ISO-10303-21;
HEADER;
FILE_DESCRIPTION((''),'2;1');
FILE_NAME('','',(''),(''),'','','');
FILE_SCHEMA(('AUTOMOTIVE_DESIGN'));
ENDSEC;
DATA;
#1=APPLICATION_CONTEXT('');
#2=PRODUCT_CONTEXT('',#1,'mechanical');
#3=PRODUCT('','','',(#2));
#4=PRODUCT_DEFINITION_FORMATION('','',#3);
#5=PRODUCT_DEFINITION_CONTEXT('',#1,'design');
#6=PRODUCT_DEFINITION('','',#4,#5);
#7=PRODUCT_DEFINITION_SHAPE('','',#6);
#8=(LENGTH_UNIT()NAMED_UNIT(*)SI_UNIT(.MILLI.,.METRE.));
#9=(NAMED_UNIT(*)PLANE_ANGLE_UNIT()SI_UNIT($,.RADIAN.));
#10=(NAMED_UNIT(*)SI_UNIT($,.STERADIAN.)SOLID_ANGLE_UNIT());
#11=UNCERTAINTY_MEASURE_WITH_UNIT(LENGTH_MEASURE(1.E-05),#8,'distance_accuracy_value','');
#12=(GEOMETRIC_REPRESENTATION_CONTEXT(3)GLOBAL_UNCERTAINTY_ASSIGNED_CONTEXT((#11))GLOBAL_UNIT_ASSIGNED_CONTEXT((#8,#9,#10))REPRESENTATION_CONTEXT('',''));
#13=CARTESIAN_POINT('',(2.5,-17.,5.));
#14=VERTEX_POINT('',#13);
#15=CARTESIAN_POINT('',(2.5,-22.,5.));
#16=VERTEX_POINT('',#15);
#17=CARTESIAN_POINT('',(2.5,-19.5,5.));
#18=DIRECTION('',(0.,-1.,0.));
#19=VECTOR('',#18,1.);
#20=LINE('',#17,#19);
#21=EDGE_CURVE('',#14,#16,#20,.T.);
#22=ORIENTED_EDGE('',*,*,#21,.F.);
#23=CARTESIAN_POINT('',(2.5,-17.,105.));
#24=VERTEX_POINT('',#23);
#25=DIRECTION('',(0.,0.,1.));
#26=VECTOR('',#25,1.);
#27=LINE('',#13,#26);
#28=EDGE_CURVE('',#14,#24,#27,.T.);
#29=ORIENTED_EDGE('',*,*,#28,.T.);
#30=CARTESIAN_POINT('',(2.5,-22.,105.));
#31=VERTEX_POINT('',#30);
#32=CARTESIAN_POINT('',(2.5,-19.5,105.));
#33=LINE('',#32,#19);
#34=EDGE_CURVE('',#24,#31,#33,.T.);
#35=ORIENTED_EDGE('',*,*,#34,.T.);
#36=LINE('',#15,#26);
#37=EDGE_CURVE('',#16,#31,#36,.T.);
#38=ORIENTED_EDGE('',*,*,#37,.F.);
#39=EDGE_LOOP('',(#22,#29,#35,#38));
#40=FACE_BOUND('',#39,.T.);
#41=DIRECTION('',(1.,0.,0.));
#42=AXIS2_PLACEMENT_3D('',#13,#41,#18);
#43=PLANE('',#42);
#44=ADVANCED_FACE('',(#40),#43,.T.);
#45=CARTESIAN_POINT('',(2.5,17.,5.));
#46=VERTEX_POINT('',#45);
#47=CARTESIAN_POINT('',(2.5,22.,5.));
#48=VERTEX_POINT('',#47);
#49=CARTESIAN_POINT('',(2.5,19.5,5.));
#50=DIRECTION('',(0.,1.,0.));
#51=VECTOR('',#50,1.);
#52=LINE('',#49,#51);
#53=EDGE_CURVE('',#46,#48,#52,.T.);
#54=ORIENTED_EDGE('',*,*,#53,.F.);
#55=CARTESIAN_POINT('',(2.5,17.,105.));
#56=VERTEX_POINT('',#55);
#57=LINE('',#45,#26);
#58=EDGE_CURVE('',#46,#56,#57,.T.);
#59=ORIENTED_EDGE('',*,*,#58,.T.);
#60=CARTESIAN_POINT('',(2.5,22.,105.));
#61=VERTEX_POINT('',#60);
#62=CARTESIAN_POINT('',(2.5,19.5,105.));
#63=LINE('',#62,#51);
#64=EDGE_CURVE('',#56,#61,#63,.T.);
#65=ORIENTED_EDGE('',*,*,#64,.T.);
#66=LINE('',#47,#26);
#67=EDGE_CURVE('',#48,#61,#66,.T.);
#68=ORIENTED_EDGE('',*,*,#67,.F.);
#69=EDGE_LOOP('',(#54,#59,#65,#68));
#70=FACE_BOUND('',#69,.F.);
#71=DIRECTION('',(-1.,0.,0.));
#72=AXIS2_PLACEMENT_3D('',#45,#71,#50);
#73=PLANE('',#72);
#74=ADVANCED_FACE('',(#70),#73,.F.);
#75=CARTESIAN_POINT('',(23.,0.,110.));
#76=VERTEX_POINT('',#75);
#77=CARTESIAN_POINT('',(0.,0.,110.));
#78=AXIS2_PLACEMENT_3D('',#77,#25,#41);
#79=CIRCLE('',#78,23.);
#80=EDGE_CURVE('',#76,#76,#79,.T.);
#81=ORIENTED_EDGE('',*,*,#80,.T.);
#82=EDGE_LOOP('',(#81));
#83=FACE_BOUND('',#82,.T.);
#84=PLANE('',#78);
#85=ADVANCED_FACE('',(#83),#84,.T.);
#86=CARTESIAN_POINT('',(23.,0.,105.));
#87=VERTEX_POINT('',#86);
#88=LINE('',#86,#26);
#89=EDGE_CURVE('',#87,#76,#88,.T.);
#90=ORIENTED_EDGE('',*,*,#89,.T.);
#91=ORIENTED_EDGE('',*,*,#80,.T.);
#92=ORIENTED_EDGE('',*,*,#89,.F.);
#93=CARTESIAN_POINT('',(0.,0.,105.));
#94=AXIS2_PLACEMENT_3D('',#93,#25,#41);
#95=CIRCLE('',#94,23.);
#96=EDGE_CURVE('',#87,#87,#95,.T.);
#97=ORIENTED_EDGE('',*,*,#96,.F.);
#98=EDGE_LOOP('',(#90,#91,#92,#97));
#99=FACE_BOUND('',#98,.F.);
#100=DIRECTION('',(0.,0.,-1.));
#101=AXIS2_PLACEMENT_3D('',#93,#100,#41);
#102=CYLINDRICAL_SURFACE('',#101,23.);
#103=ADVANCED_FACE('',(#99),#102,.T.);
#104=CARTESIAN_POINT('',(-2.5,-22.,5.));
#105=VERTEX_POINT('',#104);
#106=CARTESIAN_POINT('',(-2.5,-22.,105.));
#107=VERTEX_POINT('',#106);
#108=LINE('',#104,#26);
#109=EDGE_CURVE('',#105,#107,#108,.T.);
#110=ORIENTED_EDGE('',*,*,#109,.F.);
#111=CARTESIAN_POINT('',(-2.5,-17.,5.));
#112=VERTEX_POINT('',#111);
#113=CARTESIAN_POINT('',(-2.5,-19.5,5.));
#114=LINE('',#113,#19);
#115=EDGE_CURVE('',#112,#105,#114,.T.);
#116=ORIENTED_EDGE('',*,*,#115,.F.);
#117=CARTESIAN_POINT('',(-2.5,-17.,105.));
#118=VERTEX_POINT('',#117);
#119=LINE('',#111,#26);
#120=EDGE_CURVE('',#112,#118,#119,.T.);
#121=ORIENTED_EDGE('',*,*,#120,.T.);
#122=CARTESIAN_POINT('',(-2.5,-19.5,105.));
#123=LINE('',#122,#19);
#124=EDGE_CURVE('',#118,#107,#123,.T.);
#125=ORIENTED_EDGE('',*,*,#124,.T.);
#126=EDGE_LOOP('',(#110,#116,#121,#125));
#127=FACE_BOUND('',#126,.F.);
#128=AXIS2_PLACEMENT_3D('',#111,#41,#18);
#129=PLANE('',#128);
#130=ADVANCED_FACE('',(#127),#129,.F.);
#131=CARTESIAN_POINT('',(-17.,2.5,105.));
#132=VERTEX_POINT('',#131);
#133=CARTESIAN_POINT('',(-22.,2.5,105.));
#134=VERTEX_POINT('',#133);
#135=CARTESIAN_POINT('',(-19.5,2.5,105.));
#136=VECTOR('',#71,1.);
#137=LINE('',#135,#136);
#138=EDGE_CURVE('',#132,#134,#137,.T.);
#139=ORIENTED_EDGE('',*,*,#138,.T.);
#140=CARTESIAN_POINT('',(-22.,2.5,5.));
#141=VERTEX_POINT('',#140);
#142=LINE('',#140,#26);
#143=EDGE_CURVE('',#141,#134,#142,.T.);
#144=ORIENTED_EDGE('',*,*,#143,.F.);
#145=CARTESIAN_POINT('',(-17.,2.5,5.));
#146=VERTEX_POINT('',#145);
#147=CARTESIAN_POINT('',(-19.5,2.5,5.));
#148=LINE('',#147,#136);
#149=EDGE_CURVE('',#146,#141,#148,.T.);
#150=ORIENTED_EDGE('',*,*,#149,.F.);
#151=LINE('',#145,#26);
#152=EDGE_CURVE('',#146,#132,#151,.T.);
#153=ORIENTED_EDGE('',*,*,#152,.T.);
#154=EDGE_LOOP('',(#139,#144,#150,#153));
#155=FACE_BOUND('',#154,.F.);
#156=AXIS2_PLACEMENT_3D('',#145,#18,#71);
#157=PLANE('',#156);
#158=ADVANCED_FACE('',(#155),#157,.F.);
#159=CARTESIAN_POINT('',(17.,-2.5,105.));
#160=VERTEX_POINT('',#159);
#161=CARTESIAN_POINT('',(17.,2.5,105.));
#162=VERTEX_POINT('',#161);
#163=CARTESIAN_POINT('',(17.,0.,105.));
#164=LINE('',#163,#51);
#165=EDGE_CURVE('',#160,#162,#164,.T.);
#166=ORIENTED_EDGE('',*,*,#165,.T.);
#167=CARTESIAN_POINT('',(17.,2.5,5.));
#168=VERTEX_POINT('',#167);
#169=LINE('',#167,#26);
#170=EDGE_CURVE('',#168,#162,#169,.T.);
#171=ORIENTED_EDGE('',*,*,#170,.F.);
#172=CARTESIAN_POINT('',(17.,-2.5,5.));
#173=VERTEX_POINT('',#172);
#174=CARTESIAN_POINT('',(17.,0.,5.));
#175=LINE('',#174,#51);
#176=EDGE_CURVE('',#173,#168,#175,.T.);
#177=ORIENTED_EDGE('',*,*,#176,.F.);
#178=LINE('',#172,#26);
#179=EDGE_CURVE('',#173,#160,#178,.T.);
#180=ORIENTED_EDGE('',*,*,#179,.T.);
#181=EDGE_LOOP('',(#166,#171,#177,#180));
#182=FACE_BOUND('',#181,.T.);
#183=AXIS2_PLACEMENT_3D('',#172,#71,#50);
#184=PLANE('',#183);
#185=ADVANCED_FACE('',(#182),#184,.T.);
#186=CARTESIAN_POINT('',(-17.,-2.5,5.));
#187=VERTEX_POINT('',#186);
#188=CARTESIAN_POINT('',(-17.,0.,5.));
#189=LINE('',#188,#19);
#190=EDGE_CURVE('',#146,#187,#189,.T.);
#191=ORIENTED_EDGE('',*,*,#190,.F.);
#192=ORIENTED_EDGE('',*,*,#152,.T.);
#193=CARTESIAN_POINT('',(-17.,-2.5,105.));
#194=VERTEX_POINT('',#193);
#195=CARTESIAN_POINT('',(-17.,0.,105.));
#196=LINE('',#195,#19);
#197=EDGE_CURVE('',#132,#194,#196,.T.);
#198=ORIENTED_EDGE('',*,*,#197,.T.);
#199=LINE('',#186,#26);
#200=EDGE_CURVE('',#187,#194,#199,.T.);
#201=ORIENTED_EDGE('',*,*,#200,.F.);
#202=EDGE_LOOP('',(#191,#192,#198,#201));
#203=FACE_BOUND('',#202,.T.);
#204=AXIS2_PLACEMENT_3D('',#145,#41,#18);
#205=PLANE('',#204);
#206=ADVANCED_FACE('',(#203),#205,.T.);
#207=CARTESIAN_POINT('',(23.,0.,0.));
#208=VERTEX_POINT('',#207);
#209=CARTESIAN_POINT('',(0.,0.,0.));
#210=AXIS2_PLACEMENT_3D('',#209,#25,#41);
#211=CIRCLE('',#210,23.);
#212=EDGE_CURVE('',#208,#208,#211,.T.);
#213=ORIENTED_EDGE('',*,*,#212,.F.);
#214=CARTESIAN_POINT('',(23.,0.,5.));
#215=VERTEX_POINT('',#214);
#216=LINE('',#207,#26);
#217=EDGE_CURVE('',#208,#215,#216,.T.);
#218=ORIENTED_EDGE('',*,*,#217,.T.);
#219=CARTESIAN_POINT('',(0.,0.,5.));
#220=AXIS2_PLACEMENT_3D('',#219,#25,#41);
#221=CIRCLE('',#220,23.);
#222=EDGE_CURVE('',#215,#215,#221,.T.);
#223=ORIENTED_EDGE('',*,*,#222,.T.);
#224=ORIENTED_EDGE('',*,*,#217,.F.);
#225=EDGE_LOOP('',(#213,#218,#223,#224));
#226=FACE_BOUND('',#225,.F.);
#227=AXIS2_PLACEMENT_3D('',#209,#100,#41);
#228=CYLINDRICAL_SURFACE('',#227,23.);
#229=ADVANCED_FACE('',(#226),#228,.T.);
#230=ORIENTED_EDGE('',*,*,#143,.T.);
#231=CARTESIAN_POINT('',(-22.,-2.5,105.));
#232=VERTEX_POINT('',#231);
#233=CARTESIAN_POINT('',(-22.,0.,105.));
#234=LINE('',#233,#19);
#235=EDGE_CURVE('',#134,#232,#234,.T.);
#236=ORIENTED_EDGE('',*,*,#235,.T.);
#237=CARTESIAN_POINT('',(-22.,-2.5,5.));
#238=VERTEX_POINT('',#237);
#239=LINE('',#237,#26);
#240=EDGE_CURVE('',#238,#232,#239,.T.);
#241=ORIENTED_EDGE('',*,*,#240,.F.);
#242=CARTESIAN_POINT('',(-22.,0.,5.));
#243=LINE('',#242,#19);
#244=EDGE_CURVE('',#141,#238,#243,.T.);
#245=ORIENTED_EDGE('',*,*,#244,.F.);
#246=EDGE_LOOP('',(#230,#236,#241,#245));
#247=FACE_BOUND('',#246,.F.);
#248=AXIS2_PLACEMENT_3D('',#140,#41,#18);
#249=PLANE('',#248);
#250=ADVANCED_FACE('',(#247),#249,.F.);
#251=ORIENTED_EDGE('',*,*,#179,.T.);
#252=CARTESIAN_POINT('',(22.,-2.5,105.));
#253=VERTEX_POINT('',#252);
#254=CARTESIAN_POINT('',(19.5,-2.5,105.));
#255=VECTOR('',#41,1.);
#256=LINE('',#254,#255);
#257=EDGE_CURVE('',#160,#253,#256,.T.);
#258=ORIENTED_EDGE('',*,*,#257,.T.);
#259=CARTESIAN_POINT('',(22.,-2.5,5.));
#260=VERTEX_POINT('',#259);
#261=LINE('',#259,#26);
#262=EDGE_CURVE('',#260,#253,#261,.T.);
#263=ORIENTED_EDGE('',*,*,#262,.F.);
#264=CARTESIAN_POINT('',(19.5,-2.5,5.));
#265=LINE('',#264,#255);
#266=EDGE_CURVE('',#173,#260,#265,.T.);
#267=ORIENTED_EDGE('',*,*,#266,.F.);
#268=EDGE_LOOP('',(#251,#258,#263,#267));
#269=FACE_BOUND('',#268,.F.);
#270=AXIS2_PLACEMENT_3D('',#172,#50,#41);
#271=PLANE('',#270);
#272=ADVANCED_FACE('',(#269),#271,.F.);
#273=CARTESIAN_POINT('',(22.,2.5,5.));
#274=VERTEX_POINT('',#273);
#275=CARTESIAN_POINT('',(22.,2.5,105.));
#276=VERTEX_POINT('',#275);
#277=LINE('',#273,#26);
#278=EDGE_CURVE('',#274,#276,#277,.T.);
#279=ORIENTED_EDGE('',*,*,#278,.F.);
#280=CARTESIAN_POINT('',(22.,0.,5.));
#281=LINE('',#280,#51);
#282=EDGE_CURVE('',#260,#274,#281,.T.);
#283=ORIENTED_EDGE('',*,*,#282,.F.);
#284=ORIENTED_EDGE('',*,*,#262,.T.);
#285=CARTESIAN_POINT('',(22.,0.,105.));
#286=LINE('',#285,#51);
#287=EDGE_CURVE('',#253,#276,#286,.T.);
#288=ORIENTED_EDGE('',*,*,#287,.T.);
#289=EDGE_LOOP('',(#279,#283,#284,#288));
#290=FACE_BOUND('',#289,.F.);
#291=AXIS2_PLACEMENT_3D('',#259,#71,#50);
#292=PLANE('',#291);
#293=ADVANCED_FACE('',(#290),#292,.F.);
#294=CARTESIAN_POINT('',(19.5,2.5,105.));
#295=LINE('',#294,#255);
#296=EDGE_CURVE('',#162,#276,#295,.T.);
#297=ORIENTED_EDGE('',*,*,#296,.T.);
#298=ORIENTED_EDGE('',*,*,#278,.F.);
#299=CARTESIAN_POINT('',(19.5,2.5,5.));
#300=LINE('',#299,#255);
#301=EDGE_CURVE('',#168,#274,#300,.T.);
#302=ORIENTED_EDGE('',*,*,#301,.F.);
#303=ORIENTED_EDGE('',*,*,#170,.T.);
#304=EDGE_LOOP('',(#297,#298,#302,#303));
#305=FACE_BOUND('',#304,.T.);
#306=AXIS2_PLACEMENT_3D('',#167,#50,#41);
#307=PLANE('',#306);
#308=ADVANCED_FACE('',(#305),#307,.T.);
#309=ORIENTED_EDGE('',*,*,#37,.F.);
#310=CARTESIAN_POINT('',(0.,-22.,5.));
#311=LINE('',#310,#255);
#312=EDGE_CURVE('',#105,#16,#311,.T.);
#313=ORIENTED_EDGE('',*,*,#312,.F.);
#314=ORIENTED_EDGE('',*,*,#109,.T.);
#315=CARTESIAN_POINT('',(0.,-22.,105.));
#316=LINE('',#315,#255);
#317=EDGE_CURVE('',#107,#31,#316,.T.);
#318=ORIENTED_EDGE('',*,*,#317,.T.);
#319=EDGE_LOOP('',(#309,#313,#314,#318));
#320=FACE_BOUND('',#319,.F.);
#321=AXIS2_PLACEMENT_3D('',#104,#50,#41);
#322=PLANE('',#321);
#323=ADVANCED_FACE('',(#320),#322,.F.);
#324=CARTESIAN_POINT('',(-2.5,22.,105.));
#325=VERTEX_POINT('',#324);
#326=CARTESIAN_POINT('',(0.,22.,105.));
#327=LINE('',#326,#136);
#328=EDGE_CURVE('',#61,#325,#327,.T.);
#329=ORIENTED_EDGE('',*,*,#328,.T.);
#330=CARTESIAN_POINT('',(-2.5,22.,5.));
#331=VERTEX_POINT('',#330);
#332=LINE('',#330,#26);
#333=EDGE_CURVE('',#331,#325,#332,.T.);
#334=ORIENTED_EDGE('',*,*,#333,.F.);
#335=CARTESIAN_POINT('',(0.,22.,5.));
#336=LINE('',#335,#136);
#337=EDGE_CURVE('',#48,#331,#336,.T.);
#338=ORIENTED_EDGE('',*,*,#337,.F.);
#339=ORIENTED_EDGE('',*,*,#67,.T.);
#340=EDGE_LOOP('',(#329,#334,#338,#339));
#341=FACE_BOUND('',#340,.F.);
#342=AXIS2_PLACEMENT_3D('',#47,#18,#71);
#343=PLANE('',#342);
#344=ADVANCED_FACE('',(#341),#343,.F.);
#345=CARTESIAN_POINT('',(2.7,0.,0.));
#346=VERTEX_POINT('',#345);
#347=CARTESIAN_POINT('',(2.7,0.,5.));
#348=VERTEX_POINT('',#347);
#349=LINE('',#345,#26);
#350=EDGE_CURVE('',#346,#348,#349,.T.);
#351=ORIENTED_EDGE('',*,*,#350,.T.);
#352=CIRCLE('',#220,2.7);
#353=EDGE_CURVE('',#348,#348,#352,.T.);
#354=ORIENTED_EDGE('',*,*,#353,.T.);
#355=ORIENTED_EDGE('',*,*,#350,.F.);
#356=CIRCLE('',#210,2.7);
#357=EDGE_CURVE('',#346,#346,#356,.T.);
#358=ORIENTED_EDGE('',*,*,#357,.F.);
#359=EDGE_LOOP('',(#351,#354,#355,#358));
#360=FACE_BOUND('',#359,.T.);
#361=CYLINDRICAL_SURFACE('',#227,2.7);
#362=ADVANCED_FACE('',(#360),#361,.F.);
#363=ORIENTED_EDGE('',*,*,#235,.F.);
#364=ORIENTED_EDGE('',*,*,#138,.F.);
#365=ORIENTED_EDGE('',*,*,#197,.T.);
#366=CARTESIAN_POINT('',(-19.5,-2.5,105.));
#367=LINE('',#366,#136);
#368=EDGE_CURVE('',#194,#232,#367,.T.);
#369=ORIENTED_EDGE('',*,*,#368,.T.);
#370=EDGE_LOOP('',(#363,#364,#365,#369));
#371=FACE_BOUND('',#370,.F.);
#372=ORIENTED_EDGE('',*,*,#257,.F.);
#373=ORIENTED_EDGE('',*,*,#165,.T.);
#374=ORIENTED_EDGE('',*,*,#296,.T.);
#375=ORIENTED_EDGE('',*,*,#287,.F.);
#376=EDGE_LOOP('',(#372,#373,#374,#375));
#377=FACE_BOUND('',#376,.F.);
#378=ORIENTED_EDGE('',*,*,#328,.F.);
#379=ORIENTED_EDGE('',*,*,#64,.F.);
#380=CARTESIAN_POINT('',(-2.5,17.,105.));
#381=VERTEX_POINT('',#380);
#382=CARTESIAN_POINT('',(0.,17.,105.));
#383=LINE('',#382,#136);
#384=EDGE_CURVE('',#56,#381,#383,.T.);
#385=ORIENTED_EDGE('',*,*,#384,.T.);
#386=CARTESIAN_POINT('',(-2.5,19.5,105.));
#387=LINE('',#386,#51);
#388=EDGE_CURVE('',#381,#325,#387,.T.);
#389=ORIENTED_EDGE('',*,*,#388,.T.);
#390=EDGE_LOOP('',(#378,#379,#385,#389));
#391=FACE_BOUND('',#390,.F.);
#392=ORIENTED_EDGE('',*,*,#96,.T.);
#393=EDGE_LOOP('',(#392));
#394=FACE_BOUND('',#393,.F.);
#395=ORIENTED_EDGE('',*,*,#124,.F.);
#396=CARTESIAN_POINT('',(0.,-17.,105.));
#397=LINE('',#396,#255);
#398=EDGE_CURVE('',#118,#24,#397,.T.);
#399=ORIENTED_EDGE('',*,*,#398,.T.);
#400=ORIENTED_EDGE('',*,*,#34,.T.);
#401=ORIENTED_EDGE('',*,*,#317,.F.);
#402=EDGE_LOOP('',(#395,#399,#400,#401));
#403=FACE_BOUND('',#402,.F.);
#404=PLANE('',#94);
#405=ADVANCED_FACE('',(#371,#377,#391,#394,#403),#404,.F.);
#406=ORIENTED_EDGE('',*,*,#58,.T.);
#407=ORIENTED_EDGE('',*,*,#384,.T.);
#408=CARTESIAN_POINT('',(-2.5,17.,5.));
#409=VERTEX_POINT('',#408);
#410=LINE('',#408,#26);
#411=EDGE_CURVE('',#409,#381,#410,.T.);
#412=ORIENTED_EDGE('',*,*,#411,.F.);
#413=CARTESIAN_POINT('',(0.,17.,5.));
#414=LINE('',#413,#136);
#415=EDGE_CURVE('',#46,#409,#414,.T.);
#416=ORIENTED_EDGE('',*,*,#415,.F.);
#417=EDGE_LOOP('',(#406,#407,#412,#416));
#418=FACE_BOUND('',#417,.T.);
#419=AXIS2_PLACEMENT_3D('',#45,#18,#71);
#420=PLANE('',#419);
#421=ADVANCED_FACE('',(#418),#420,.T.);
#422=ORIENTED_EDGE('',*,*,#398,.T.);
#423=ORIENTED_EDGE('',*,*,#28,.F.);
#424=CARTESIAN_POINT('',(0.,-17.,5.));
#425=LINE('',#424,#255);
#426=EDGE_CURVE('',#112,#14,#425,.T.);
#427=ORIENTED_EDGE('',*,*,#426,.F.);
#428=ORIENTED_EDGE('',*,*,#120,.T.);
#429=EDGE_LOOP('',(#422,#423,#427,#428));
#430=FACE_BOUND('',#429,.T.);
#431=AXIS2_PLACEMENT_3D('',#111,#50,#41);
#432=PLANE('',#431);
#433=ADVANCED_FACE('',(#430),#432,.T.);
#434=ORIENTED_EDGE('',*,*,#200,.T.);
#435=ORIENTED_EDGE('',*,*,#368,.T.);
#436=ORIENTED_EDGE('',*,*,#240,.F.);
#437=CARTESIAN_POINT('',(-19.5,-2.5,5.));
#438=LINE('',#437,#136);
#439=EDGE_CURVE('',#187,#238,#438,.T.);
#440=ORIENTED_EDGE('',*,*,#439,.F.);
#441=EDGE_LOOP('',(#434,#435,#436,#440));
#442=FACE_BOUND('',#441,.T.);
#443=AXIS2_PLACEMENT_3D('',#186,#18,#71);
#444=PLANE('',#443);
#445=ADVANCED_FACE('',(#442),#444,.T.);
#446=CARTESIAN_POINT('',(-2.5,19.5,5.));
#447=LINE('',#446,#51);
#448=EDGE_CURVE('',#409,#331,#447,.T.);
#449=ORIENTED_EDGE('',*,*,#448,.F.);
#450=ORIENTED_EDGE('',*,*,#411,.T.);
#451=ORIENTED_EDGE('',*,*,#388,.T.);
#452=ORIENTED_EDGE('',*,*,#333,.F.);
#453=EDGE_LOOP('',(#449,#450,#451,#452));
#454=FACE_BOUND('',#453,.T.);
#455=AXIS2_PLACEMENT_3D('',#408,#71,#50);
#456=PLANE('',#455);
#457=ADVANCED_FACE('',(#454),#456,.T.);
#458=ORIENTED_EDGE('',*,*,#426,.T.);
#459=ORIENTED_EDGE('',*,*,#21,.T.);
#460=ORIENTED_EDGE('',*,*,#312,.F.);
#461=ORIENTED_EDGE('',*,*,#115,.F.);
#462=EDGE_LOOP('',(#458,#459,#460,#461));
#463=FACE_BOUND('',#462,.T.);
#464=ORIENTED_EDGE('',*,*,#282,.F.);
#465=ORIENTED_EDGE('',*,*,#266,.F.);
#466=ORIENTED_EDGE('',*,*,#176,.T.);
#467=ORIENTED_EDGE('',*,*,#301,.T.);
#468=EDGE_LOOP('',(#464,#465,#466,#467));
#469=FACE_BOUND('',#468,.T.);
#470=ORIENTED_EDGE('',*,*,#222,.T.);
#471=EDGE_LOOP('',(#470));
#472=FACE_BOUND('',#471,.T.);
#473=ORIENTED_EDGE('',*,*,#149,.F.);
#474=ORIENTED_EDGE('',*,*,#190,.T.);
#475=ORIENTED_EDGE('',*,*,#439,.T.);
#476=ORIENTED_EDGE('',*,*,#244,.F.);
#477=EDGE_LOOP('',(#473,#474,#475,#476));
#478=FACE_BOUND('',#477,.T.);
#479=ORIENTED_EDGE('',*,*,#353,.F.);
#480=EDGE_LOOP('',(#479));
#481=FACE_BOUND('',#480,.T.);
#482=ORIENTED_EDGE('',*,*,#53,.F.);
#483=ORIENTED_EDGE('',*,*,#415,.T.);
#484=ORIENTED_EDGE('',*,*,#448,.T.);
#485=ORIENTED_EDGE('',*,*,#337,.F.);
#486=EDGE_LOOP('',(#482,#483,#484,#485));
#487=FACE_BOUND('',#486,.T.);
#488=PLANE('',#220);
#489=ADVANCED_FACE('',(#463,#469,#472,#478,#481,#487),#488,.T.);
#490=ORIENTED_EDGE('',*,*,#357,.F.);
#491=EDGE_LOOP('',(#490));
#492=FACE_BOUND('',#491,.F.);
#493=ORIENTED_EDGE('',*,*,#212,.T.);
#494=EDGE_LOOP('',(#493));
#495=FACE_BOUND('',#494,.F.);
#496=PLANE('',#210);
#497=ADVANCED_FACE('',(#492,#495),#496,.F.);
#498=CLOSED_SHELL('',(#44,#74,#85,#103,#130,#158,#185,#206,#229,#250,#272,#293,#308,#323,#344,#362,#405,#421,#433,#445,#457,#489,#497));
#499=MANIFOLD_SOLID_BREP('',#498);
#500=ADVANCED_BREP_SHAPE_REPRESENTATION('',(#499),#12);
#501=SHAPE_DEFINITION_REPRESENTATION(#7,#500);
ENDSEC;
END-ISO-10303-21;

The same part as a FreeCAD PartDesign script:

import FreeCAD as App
import Part
import Sketcher

V = App.Vector
Q = App.Units.Quantity

doc = App.newDocument("Part")
body = doc.addObject("PartDesign::Body", "Body")

sketch1 = body.newObject("Sketcher::SketchObject", "Sketch")
sketch1.AttachmentSupport = (doc.getObject("XY_Plane"), [""])
sketch1.MapMode = "FlatFace"
sketch1.addGeometry(Part.Circle(V(0, 0, 0), V(0, 0, 1), 23), False)
sketch1.addConstraint([
    Sketcher.Constraint("Coincident", 0, 3, -1, 1),
    Sketcher.Constraint("Diameter", 0, Q("46 mm")),
])
pad1 = body.newObject("PartDesign::Pad", "Pad")
pad1.Profile = sketch1
pad1.Length = 5

sketch2 = body.newObject("Sketcher::SketchObject", "Sketch001")
sketch2.AttachmentSupport = (doc.getObject("XY_Plane"), [""])
sketch2.MapMode = "FlatFace"
sketch2.addGeometry(Part.Circle(V(0, 0, 0), V(0, 0, 1), 2.7), False)
sketch2.addConstraint([
    Sketcher.Constraint("Coincident", 0, 3, -1, 1),
    Sketcher.Constraint("Diameter", 0, Q("5.4 mm")),
])
pocket1 = body.newObject("PartDesign::Pocket", "Pocket")
pocket1.Profile = sketch2
pocket1.Length = 5
pocket1.Reversed = True

sketch3 = body.newObject("Sketcher::SketchObject", "Sketch002")
sketch3.AttachmentSupport = (doc.getObject("XY_Plane"), [""])
sketch3.MapMode = "FlatFace"
sketch3.AttachmentOffset = App.Placement(V(0, 0, 5), App.Rotation())
sketch3.addGeometry([
    Part.LineSegment(V(17, 2.5, 0), V(17, -2.5, 0)),
    Part.LineSegment(V(17, -2.5, 0), V(22, -2.5, 0)),
    Part.LineSegment(V(22, -2.5, 0), V(22, 2.5, 0)),
    Part.LineSegment(V(22, 2.5, 0), V(17, 2.5, 0)),
], False)
sketch3.addConstraint([
    Sketcher.Constraint("Coincident", 0, 2, 1, 1),
    Sketcher.Constraint("Coincident", 1, 2, 2, 1),
    Sketcher.Constraint("Coincident", 2, 2, 3, 1),
    Sketcher.Constraint("Coincident", 3, 2, 0, 1),
    Sketcher.Constraint("Vertical", 0),
    Sketcher.Constraint("Horizontal", 1),
    Sketcher.Constraint("Vertical", 2),
    Sketcher.Constraint("Horizontal", 3),
    Sketcher.Constraint("Equal", 3, 0),
    Sketcher.Constraint("DistanceX", 1, 1, 1, 2, Q("5 mm")),
    Sketcher.Constraint("DistanceX", -1, 1, 0, 2, Q("17 mm")),
    Sketcher.Constraint("DistanceY", 0, 2, -1, 1, Q("2.5 mm")),
])
pad2 = body.newObject("PartDesign::Pad", "Pad001")
pad2.Profile = sketch3
pad2.Length = 100
doc.recompute()

polarpattern = body.newObject("PartDesign::PolarPattern", "PolarPattern")
polarpattern.Originals = [pad2]
polarpattern.Axis = (doc.getObject("Z_Axis"), [""])
polarpattern.Angle = 360
polarpattern.Occurrences = 4
body.Tip = polarpattern

sketch4 = body.newObject("Sketcher::SketchObject", "Sketch003")
sketch4.AttachmentSupport = (doc.getObject("XY_Plane"), [""])
sketch4.MapMode = "FlatFace"
sketch4.AttachmentOffset = App.Placement(V(0, 0, 105), App.Rotation())
sketch4.addGeometry(Part.Circle(V(0, 0, 0), V(0, 0, 1), 23), False)
sketch4.addConstraint([
    Sketcher.Constraint("Coincident", 0, 3, -1, 1),
    Sketcher.Constraint("Diameter", 0, Q("46 mm")),
])
pad3 = body.newObject("PartDesign::Pad", "Pad002")
pad3.Profile = sketch4
pad3.Length = 5

doc.recompute()
